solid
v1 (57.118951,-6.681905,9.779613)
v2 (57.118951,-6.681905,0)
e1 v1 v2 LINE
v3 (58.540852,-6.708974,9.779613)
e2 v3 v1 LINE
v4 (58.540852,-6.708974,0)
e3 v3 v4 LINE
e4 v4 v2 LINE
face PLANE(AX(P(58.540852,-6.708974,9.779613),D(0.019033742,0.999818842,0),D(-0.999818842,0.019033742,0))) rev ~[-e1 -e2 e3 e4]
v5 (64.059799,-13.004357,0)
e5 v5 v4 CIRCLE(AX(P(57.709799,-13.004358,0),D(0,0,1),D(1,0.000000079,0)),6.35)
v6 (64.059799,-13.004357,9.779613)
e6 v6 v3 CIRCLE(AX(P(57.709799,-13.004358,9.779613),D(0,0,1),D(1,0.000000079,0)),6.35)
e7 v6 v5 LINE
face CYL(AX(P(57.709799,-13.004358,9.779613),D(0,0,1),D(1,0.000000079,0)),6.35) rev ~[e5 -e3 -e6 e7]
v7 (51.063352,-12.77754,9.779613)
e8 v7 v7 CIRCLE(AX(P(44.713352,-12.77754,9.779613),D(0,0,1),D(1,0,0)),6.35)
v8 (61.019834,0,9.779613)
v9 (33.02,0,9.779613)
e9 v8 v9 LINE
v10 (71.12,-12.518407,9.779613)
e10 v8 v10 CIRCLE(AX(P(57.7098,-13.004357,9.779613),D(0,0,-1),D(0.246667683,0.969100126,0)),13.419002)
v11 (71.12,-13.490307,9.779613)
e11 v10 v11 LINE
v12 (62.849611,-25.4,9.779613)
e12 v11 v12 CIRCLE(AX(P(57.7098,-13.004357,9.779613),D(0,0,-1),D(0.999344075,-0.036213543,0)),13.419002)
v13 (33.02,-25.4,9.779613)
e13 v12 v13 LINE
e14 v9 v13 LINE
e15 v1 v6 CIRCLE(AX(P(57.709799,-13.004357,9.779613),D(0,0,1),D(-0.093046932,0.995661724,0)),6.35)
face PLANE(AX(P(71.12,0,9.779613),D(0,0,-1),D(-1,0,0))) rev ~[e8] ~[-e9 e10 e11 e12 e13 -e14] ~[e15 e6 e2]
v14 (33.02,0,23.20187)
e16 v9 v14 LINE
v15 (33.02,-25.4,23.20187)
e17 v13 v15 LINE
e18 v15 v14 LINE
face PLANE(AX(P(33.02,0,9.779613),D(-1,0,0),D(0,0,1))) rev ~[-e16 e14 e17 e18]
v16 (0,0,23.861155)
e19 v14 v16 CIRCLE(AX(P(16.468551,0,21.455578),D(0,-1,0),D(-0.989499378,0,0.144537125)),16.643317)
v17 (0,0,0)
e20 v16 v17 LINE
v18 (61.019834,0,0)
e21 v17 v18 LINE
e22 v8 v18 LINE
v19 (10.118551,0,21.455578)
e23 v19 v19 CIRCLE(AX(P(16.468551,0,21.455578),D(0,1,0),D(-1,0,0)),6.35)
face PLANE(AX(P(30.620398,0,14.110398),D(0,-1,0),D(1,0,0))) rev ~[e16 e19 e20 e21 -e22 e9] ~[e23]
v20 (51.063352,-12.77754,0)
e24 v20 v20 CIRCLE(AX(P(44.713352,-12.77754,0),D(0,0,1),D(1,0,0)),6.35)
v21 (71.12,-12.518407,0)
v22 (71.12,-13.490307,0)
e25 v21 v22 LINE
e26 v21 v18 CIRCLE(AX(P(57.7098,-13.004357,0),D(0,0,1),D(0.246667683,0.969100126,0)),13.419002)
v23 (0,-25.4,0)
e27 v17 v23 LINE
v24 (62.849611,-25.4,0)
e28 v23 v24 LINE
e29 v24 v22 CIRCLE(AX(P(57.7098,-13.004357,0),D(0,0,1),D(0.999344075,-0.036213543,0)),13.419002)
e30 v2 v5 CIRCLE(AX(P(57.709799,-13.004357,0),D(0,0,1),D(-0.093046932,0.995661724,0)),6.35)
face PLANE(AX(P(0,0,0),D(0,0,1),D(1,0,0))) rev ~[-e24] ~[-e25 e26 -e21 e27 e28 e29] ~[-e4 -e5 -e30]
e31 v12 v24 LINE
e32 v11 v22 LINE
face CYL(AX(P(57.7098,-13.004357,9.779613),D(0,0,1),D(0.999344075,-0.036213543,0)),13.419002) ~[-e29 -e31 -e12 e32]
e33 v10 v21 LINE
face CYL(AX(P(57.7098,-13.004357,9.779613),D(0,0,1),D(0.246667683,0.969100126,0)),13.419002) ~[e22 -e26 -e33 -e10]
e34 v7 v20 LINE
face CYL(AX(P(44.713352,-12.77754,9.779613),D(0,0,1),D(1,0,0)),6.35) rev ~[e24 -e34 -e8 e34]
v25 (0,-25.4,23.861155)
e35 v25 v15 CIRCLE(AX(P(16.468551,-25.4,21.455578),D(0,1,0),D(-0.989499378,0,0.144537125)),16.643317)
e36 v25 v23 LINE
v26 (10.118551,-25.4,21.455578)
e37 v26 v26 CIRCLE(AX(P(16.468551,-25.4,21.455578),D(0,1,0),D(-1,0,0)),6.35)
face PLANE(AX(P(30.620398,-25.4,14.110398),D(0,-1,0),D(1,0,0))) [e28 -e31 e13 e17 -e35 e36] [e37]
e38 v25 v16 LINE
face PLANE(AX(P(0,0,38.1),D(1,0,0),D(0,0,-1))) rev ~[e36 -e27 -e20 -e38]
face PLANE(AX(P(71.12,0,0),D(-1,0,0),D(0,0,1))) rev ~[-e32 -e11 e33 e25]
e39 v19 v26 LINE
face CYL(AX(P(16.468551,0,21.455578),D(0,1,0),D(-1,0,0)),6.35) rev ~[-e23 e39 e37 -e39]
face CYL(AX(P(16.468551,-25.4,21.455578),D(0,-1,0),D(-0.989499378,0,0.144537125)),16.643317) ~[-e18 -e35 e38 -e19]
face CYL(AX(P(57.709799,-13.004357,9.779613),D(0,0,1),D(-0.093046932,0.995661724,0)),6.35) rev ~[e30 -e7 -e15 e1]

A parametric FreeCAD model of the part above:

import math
import FreeCAD as App
import Part
import Sketcher
from FreeCAD import Vector
Q = App.Units.Quantity


def add_polygon(sketch, points):
    """Adds a closed chain of lines whose ends are joined by coincident constraints."""
    first, n = sketch.GeometryCount, len(points)
    for a, b in zip(points, points[1:] + points[:1]):
        sketch.addGeometry(Part.LineSegment(App.Vector(*a, 0), App.Vector(*b, 0)), False)
    for i in range(n):
        sketch.addConstraint(Sketcher.Constraint("Coincident", first + i, 2, first + (i + 1) % n, 1))

doc = App.newDocument("Part")
body = doc.addObject("PartDesign::Body", "Body")

sketch1 = body.newObject("Sketcher::SketchObject", "Sketch")
sketch1.AttachmentSupport = (doc.getObject("XZ_Plane"), [""])
sketch1.MapMode = "FlatFace"
add_polygon(sketch1, [(0, 38), (0, 0), (71, 0), (71, 10), (33, 10), (33, 38)])
sketch1.addConstraint([
    Sketcher.Constraint("Vertical", 0),
    Sketcher.Constraint("Horizontal", 1),
    Sketcher.Constraint("Vertical", 2),
    Sketcher.Constraint("Horizontal", 3),
    Sketcher.Constraint("Vertical", 4),
    Sketcher.Constraint("Horizontal", 5),
    Sketcher.Constraint("Coincident", 0, 2, -1, 1),
    Sketcher.Constraint("Equal", 3, 0),
    Sketcher.Constraint("DistanceX", 1, 1, 1, 2, Q("2.8 in")),
    Sketcher.Constraint("DistanceX", 3, 2, 3, 1, Q("1.5 in")),
    Sketcher.Constraint("DistanceY", 2, 1, 2, 2, 9.779613),
])
pad1 = body.newObject("PartDesign::Pad", "Pad")
pad1.Profile = sketch1
pad1.Length = Q("1 in")

sketch2 = body.newObject("Sketcher::SketchObject", "Sketch001")
sketch2.AttachmentSupport = (doc.getObject("XZ_Plane"), [""])
sketch2.MapMode = "FlatFace"
sketch2.AttachmentOffset = App.Placement(Vector(0, 0, 1 * 25.4), App.Rotation())
sketch2.addGeometry([
    Part.ArcOfCircle(Part.Circle(Vector(16, 21, 0), Vector(0, 0, 1), 17), math.radians(6), math.radians(172)),
    Part.LineSegment(Vector(33, 23, 0), Vector(33, 38, 0)),
    Part.LineSegment(Vector(33, 38, 0), Vector(0, 38, 0)),
    Part.LineSegment(Vector(0, 38, 0), Vector(0, 24, 0)),
], False)
sketch2.addConstraint([
    Sketcher.Constraint("Coincident", 0, 1, 1, 1),
    Sketcher.Constraint("Coincident", 1, 2, 2, 1),
    Sketcher.Constraint("Coincident", 2, 2, 3, 1),
    Sketcher.Constraint("Coincident", 3, 2, 0, 2),
    Sketcher.Constraint("Vertical", 1),
    Sketcher.Constraint("Horizontal", 2),
    Sketcher.Constraint("Vertical", 3),
    Sketcher.Constraint("PointOnObject", 2, 2, -2),
    Sketcher.Constraint("DistanceX", 2, 2, 2, 1, Q("1.3 in")),
    Sketcher.Constraint("DistanceY", -1, 1, 1, 2, Q("1.5 in")),
    Sketcher.Constraint("Radius", 0, 16.643317),
    Sketcher.Constraint("DistanceY", 1, 1, 1, 2, 14.89813),
    Sketcher.Constraint("DistanceY", 3, 2, 3, 1, 14.238845),
])
pocket1 = body.newObject("PartDesign::Pocket", "Pocket")
pocket1.Profile = sketch2
pocket1.Type = "ThroughAll"

sketch3 = body.newObject("Sketcher::SketchObject", "Sketch002")
sketch3.AttachmentSupport = (doc.getObject("XY_Plane"), [""])
sketch3.MapMode = "FlatFace"
sketch3.AttachmentOffset = App.Placement(Vector(0, 0, 9.779613), App.Rotation())
sketch3.addGeometry([
    Part.ArcOfCircle(Part.Circle(Vector(58, -13, 0), Vector(0, 0, 1), 13), math.radians(2), math.radians(76)),
    Part.LineSegment(Vector(71, -13, 0), Vector(71, 0, 0)),
    Part.LineSegment(Vector(71, 0, 0), Vector(61, 0, 0)),
    Part.ArcOfCircle(Part.Circle(Vector(58, -13, 0), Vector(0, 0, 1), 13), math.radians(-67), math.radians(-2)),
    Part.LineSegment(Vector(63, -25, 0), Vector(71, -25, 0)),
    Part.LineSegment(Vector(71, -25, 0), Vector(71, -13, 0)),
], False)
sketch3.addConstraint([
    Sketcher.Constraint("Coincident", 0, 1, 1, 1),
    Sketcher.Constraint("Coincident", 1, 2, 2, 1),
    Sketcher.Constraint("Coincident", 2, 2, 0, 2),
    Sketcher.Constraint("Coincident", 3, 1, 4, 1),
    Sketcher.Constraint("Coincident", 4, 2, 5, 1),
    Sketcher.Constraint("Coincident", 5, 2, 3, 2),
    Sketcher.Constraint("Vertical", 1),
    Sketcher.Constraint("Horizontal", 2),
    Sketcher.Constraint("Horizontal", 4),
    Sketcher.Constraint("Vertical", 5),
    Sketcher.Constraint("Coincident", 3, 3, 0, 3),
    Sketcher.Constraint("Equal", 0, 3),
    Sketcher.Constraint("PointOnObject", 1, 2, -1),
    Sketcher.Constraint("Vertical", 1, 2, 4, 2),
    Sketcher.Constraint("DistanceY", 3, 1, -1, 1, Q("1 in")),
    Sketcher.Constraint("DistanceX", -1, 1, 0, 1, Q("2.8 in")),
    Sketcher.Constraint("Radius", 0, 13.419002),
    Sketcher.Constraint("DistanceX", 4, 1, 4, 2, 8.270389),
    Sketcher.Constraint("DistanceX", -1, 1, 0, 3, 57.7098),
])
pocket2 = body.newObject("PartDesign::Pocket", "Pocket001")
pocket2.Profile = sketch3
pocket2.Type = "ThroughAll"

sketch4 = body.newObject("Sketcher::SketchObject", "Sketch003")
sketch4.AttachmentSupport = (doc.getObject("XZ_Plane"), [""])
sketch4.MapMode = "FlatFace"
sketch4.addGeometry(Part.Circle(Vector(16, 21, 0), Vector(0, 0, 1), 6), False)
sketch4.addConstraint([
    Sketcher.Constraint("Diameter", 0, Q("0.5 in")),
    Sketcher.Constraint("DistanceX", -1, 1, 0, 3, 16.468551),
    Sketcher.Constraint("DistanceY", -1, 1, 0, 3, 21.455578),
])
pocket3 = body.newObject("PartDesign::Pocket", "Pocket002")
pocket3.Profile = sketch4
pocket3.Type = "ThroughAll"
pocket3.Reversed = True

sketch5 = body.newObject("Sketcher::SketchObject", "Sketch004")
sketch5.AttachmentSupport = (doc.getObject("XY_Plane"), [""])
sketch5.MapMode = "FlatFace"
sketch5.AttachmentOffset = App.Placement(Vector(0, 0, 9.779613), App.Rotation())
sketch5.addGeometry([
    Part.LineSegment(Vector(58.5, -6.7, 0), Vector(57.1, -6.7, 0)),
    Part.ArcOfCircle(Part.Circle(Vector(57.7, -13, 0), Vector(0, 0, 1), 6.3), math.radians(95), math.radians(360)),
    Part.ArcOfCircle(Part.Circle(Vector(57.7, -13, 0), Vector(0, 0, 1), 6.4), math.radians(0), math.radians(82)),
    Part.Circle(Vector(44.7, -12.8, 0), Vector(0, 0, 1), 6.3),
], False)
sketch5.addConstraint([
    Sketcher.Constraint("Coincident", 0, 2, 1, 1),
    Sketcher.Constraint("Tangent", 1, 2, 2, 1),
    Sketcher.Constraint("Coincident", 2, 2, 0, 1),
    Sketcher.Constraint("Equal", 1, 2),
    Sketcher.Constraint("Equal", 2, 3),
    Sketcher.Constraint("Horizontal", 2, 3, 1, 2),
    Sketcher.Constraint("Diameter", 3, Q("0.5 in")),
    Sketcher.Constraint("DistanceX", -1, 1, 1, 3, 57.709799),
    Sketcher.Constraint("DistanceX", 3, 3, 0, 2, 12.405599),
    Sketcher.Constraint("DistanceX", 0, 2, 2, 2, 1.421901),
    Sketcher.Constraint("DistanceY", 3, 3, -1, 1, 12.77754),
    Sketcher.Constraint("DistanceX", -1, 1, 0, 2, 57.118951),
    Sketcher.Constraint("DistanceY", 1, 3, -1, 1, 13.004357),
])
pocket4 = body.newObject("PartDesign::Pocket", "Pocket003")
pocket4.Profile = sketch5
pocket4.Type = "ThroughAll"

doc.recompute()
